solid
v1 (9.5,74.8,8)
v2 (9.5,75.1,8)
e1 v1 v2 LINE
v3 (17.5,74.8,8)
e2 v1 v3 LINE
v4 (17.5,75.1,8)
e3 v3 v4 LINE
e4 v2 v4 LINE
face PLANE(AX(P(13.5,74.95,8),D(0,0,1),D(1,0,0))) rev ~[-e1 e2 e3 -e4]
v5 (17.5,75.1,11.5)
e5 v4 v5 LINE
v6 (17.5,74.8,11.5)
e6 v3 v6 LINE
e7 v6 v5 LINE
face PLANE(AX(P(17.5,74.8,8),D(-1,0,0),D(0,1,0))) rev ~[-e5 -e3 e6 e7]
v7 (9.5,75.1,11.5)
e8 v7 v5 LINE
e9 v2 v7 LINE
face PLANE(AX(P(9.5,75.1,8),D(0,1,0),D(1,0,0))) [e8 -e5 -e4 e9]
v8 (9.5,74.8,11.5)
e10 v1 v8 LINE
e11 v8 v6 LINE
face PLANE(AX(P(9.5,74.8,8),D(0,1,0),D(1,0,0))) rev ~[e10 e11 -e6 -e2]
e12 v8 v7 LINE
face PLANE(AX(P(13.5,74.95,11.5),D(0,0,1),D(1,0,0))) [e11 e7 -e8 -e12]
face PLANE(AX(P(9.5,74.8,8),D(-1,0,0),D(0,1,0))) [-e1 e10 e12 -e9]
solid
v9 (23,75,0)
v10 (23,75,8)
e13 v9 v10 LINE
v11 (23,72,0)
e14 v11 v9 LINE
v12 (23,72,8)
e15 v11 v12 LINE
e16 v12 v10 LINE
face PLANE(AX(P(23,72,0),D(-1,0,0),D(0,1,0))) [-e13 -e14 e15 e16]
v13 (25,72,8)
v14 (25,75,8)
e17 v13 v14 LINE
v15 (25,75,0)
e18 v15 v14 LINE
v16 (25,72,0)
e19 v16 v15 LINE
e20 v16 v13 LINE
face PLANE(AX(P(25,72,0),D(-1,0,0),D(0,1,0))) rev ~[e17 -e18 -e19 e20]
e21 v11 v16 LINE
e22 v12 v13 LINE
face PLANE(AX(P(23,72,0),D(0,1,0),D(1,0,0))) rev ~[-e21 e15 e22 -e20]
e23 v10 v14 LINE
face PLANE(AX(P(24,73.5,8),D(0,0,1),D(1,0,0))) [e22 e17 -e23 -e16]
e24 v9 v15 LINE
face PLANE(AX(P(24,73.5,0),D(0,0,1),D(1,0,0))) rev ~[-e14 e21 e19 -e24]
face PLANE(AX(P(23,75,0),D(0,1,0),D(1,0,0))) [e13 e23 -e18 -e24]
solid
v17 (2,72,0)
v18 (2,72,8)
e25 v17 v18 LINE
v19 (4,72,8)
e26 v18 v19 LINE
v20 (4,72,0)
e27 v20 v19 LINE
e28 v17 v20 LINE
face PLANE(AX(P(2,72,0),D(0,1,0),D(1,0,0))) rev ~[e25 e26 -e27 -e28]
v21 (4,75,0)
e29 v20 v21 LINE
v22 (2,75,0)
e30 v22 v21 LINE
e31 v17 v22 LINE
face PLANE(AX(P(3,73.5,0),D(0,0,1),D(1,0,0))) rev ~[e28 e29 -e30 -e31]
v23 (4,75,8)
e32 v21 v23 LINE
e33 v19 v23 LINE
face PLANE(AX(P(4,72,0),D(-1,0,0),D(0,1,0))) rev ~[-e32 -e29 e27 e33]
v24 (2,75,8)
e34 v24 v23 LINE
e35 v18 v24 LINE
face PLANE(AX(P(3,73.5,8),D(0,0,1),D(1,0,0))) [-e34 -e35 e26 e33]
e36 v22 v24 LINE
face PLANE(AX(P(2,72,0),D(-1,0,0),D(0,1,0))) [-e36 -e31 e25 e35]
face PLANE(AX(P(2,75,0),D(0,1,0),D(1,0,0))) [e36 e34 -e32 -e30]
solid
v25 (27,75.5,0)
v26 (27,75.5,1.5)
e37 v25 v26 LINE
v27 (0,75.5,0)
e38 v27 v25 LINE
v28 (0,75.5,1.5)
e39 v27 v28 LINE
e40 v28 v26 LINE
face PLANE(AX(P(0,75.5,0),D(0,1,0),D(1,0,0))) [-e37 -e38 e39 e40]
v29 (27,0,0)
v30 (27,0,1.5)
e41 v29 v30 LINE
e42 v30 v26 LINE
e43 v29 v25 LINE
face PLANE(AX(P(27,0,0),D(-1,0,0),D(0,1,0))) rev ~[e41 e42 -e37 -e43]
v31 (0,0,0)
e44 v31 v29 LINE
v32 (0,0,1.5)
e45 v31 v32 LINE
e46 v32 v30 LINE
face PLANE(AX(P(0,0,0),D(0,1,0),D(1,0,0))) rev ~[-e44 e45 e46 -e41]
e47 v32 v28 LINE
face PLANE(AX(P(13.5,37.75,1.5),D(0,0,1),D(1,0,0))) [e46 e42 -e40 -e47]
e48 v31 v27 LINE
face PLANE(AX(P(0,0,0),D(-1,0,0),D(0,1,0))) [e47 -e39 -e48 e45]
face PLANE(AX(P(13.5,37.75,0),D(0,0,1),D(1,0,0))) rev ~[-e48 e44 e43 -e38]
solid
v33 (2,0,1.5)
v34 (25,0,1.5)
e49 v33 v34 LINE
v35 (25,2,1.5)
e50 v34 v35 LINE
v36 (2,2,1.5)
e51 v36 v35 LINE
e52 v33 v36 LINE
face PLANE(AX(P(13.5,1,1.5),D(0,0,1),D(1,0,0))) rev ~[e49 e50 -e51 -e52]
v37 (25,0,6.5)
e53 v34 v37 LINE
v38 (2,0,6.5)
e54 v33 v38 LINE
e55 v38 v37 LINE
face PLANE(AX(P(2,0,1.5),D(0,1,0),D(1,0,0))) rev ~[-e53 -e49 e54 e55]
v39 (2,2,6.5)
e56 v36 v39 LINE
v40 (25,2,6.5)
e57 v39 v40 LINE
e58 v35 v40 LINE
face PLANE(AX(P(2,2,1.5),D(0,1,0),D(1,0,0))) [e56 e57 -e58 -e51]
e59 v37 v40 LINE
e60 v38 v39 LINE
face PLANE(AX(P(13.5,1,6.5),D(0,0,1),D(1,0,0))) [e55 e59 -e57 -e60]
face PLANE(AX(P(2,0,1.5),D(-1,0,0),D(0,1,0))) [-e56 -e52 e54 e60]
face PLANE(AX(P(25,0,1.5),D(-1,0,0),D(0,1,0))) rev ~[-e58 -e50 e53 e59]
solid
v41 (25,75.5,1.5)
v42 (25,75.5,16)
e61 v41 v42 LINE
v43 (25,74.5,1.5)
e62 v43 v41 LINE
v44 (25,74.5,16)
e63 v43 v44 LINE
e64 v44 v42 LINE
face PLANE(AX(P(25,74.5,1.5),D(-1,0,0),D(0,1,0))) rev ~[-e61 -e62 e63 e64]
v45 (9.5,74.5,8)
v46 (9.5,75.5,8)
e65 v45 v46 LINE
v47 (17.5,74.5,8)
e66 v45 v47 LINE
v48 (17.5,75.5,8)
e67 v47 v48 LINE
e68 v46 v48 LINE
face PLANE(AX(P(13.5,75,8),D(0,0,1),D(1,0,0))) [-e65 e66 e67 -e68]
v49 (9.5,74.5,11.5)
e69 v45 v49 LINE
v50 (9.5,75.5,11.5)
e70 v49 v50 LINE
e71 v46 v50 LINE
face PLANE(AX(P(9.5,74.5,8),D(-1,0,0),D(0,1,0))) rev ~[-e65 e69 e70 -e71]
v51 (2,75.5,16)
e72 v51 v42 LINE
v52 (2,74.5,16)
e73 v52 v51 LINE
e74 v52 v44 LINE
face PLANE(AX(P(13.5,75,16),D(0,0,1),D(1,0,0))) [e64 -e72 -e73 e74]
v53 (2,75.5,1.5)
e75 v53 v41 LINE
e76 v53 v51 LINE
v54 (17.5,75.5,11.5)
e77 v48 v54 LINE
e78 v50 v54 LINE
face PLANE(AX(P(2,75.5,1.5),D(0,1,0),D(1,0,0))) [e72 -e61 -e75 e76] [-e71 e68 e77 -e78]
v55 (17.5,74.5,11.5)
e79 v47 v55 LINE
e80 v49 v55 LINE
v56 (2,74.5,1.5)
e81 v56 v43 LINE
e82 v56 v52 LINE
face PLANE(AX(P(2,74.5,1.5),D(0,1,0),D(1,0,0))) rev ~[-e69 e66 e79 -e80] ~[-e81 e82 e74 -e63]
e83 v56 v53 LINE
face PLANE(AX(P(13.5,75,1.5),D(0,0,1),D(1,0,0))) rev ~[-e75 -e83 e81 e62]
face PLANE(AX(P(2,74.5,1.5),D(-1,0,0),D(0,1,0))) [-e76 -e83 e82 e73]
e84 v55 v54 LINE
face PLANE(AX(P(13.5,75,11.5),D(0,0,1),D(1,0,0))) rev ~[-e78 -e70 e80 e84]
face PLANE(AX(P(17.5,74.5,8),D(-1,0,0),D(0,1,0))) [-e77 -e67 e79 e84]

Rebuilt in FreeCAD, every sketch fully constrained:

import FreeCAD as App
import Part
import Sketcher
Q = App.Units.Quantity

doc = App.newDocument("Part")
body = doc.addObject("PartDesign::Body", "Body")

# Sketch on XY plane
sketch1 = doc.addObject("Sketcher::SketchObject", "Sketch")
body.addObject(sketch1)
sketch1.AttachmentSupport = (doc.XY_Plane, [""])
sketch1.MapMode = "FlatFace"
sketch1.addGeometry([
    Part.LineSegment(App.Vector(0, 75.5, 0), App.Vector(0, 0, 0)),
    Part.LineSegment(App.Vector(0, 0, 0), App.Vector(27, 0, 0)),
    Part.LineSegment(App.Vector(27, 0, 0), App.Vector(27, 75.5, 0)),
    Part.LineSegment(App.Vector(27, 75.5, 0), App.Vector(0, 75.5, 0)),
], False)
sketch1.addConstraint([
    Sketcher.Constraint("Coincident", 0, 2, 1, 1),
    Sketcher.Constraint("Coincident", 1, 2, 2, 1),
    Sketcher.Constraint("Coincident", 2, 2, 3, 1),
    Sketcher.Constraint("Coincident", 3, 2, 0, 1),
    Sketcher.Constraint("Vertical", 0),
    Sketcher.Constraint("Horizontal", 1),
    Sketcher.Constraint("Vertical", 2),
    Sketcher.Constraint("Horizontal", 3),
    Sketcher.Constraint("Coincident", 0, 2, -1, 1),
    Sketcher.Constraint("DistanceX", 1, 1, 1, 2, Q("27 mm")),
    Sketcher.Constraint("DistanceY", 0, 2, 0, 1, Q("75.5 mm")),
])
pad1 = doc.addObject("PartDesign::Pad", "Pad")
body.addObject(pad1)
pad1.Profile = sketch1
pad1.Length = 1.5
body2 = doc.addObject("PartDesign::Body", "Body001")

# Sketch on XY plane
sketch2 = doc.addObject("Sketcher::SketchObject", "Sketch001")
body2.addObject(sketch2)
sketch2.AttachmentSupport = (doc.getObject("XY_Plane001"), [""])
sketch2.MapMode = "FlatFace"
sketch2.AttachmentOffset = App.Placement(App.Vector(0, 0, 1.5), App.Rotation())
sketch2.addGeometry([
    Part.LineSegment(App.Vector(2, 2, 0), App.Vector(2, 0, 0)),
    Part.LineSegment(App.Vector(2, 0, 0), App.Vector(25, 0, 0)),
    Part.LineSegment(App.Vector(25, 0, 0), App.Vector(25, 2, 0)),
    Part.LineSegment(App.Vector(25, 2, 0), App.Vector(2, 2, 0)),
], False)
sketch2.addConstraint([
    Sketcher.Constraint("Coincident", 0, 2, 1, 1),
    Sketcher.Constraint("Coincident", 1, 2, 2, 1),
    Sketcher.Constraint("Coincident", 2, 2, 3, 1),
    Sketcher.Constraint("Coincident", 3, 2, 0, 1),
    Sketcher.Constraint("Vertical", 0),
    Sketcher.Constraint("Horizontal", 1),
    Sketcher.Constraint("Vertical", 2),
    Sketcher.Constraint("Horizontal", 3),
    Sketcher.Constraint("PointOnObject", 0, 2, -1),
    Sketcher.Constraint("DistanceX", 1, 1, 1, 2, Q("23 mm")),
    Sketcher.Constraint("DistanceY", 0, 2, 0, 1, Q("2 mm")),
    Sketcher.Constraint("DistanceX", -1, 1, 0, 2, Q("2 mm")),
])
pad2 = doc.addObject("PartDesign::Pad", "Pad001")
body2.addObject(pad2)
pad2.Profile = sketch2
pad2.Length = 5
body3 = doc.addObject("PartDesign::Body", "Body002")

# Sketch on XY plane
sketch3 = doc.addObject("Sketcher::SketchObject", "Sketch002")
body3.addObject(sketch3)
sketch3.AttachmentSupport = (doc.getObject("XY_Plane002"), [""])
sketch3.MapMode = "FlatFace"
sketch3.AttachmentOffset = App.Placement(App.Vector(0, 0, 8), App.Rotation())
sketch3.addGeometry([
    Part.LineSegment(App.Vector(9.5, 75.5, 0), App.Vector(9.5, 74.5, 0)),
    Part.LineSegment(App.Vector(9.5, 74.5, 0), App.Vector(17.5, 74.5, 0)),
    Part.LineSegment(App.Vector(17.5, 74.5, 0), App.Vector(17.5, 75.5, 0)),
    Part.LineSegment(App.Vector(17.5, 75.5, 0), App.Vector(9.5, 75.5, 0)),
], False)
sketch3.addConstraint([
    Sketcher.Constraint("Coincident", 0, 2, 1, 1),
    Sketcher.Constraint("Coincident", 1, 2, 2, 1),
    Sketcher.Constraint("Coincident", 2, 2, 3, 1),
    Sketcher.Constraint("Coincident", 3, 2, 0, 1),
    Sketcher.Constraint("Vertical", 0),
    Sketcher.Constraint("Horizontal", 1),
    Sketcher.Constraint("Vertical", 2),
    Sketcher.Constraint("Horizontal", 3),
    Sketcher.Constraint("DistanceX", 1, 1, 1, 2, Q("8 mm")),
    Sketcher.Constraint("DistanceY", 0, 2, 0, 1, Q("1 mm")),
    Sketcher.Constraint("DistanceX", -1, 1, 0, 2, Q("9.5 mm")),
    Sketcher.Constraint("DistanceY", -1, 1, 0, 2, Q("74.5 mm")),
])
pad3 = doc.addObject("PartDesign::Pad", "Pad002")
body3.addObject(pad3)
pad3.Profile = sketch3
pad3.Length = 3.5
body4 = doc.addObject("PartDesign::Body", "Body003")

# Sketch on XY plane
sketch4 = doc.addObject("Sketcher::SketchObject", "Sketch003")
body4.addObject(sketch4)
sketch4.AttachmentSupport = (doc.getObject("XY_Plane003"), [""])
sketch4.MapMode = "FlatFace"
sketch4.AttachmentOffset = App.Placement(App.Vector(0, 0, 1.5), App.Rotation())
sketch4.addGeometry([
    Part.LineSegment(App.Vector(2, 75.5, 0), App.Vector(2, 74.5, 0)),
    Part.LineSegment(App.Vector(2, 74.5, 0), App.Vector(25, 74.5, 0)),
    Part.LineSegment(App.Vector(25, 74.5, 0), App.Vector(25, 75.5, 0)),
    Part.LineSegment(App.Vector(25, 75.5, 0), App.Vector(2, 75.5, 0)),
], False)
sketch4.addConstraint([
    Sketcher.Constraint("Coincident", 0, 2, 1, 1),
    Sketcher.Constraint("Coincident", 1, 2, 2, 1),
    Sketcher.Constraint("Coincident", 2, 2, 3, 1),
    Sketcher.Constraint("Coincident", 3, 2, 0, 1),
    Sketcher.Constraint("Vertical", 0),
    Sketcher.Constraint("Horizontal", 1),
    Sketcher.Constraint("Vertical", 2),
    Sketcher.Constraint("Horizontal", 3),
    Sketcher.Constraint("DistanceX", 1, 1, 1, 2, Q("23 mm")),
    Sketcher.Constraint("DistanceY", 0, 2, 0, 1, Q("1 mm")),
    Sketcher.Constraint("DistanceX", -1, 1, 0, 2, Q("2 mm")),
    Sketcher.Constraint("DistanceY", -1, 1, 0, 2, Q("74.5 mm")),
])
pad4 = doc.addObject("PartDesign::Pad", "Pad003")
body4.addObject(pad4)
pad4.Profile = sketch4
pad4.Length = 14.5
doc.recompute()

boolean = doc.addObject("PartDesign::Boolean", "Boolean")
body4.addObject(boolean)
boolean.Type = "Cut"
boolean.addObjects([body3])
body5 = doc.addObject("PartDesign::Body", "Body004")

# Sketch on XY plane
sketch5 = doc.addObject("Sketcher::SketchObject", "Sketch004")
body5.addObject(sketch5)
sketch5.AttachmentSupport = (doc.getObject("XY_Plane004"), [""])
sketch5.MapMode = "FlatFace"
sketch5.AttachmentOffset = App.Placement(App.Vector(0, 0, 8), App.Rotation())
sketch5.addGeometry([
    Part.LineSegment(App.Vector(9.5, 75.1, 0), App.Vector(9.5, 74.8, 0)),
    Part.LineSegment(App.Vector(9.5, 74.8, 0), App.Vector(17.5, 74.8, 0)),
    Part.LineSegment(App.Vector(17.5, 74.8, 0), App.Vector(17.5, 75.1, 0)),
    Part.LineSegment(App.Vector(17.5, 75.1, 0), App.Vector(9.5, 75.1, 0)),
], False)
sketch5.addConstraint([
    Sketcher.Constraint("Coincident", 0, 2, 1, 1),
    Sketcher.Constraint("Coincident", 1, 2, 2, 1),
    Sketcher.Constraint("Coincident", 2, 2, 3, 1),
    Sketcher.Constraint("Coincident", 3, 2, 0, 1),
    Sketcher.Constraint("Vertical", 0),
    Sketcher.Constraint("Horizontal", 1),
    Sketcher.Constraint("Vertical", 2),
    Sketcher.Constraint("Horizontal", 3),
    Sketcher.Constraint("DistanceX", 1, 1, 1, 2, Q("8 mm")),
    Sketcher.Constraint("DistanceY", 0, 2, 0, 1, Q("0.3 mm")),
    Sketcher.Constraint("DistanceX", -1, 1, 0, 2, Q("9.5 mm")),
    Sketcher.Constraint("DistanceY", -1, 1, 0, 2, Q("74.8 mm")),
])
pad5 = doc.addObject("PartDesign::Pad", "Pad004")
body5.addObject(pad5)
pad5.Profile = sketch5
pad5.Length = 3.5
body6 = doc.addObject("PartDesign::Body", "Body005")

# Sketch on XY plane
sketch6 = doc.addObject("Sketcher::SketchObject", "Sketch005")
body6.addObject(sketch6)
sketch6.AttachmentSupport = (doc.getObject("XY_Plane005"), [""])
sketch6.MapMode = "FlatFace"
sketch6.addGeometry([
    Part.LineSegment(App.Vector(2, 75, 0), App.Vector(2, 72, 0)),
    Part.LineSegment(App.Vector(2, 72, 0), App.Vector(4, 72, 0)),
    Part.LineSegment(App.Vector(4, 72, 0), App.Vector(4, 75, 0)),
    Part.LineSegment(App.Vector(4, 75, 0), App.Vector(2, 75, 0)),
], False)
sketch6.addConstraint([
    Sketcher.Constraint("Coincident", 0, 2, 1, 1),
    Sketcher.Constraint("Coincident", 1, 2, 2, 1),
    Sketcher.Constraint("Coincident", 2, 2, 3, 1),
    Sketcher.Constraint("Coincident", 3, 2, 0, 1),
    Sketcher.Constraint("Vertical", 0),
    Sketcher.Constraint("Horizontal", 1),
    Sketcher.Constraint("Vertical", 2),
    Sketcher.Constraint("Horizontal", 3),
    Sketcher.Constraint("DistanceX", 1, 1, 1, 2, Q("2 mm")),
    Sketcher.Constraint("DistanceY", 0, 2, 0, 1, Q("3 mm")),
    Sketcher.Constraint("DistanceX", -1, 1, 0, 2, Q("2 mm")),
    Sketcher.Constraint("DistanceY", -1, 1, 0, 2, Q("72 mm")),
])
pad6 = doc.addObject("PartDesign::Pad", "Pad005")
body6.addObject(pad6)
pad6.Profile = sketch6
pad6.Length = 8
body7 = doc.addObject("PartDesign::Body", "Body006")

# Sketch on XY plane
sketch7 = doc.addObject("Sketcher::SketchObject", "Sketch006")
body7.addObject(sketch7)
sketch7.AttachmentSupport = (doc.getObject("XY_Plane006"), [""])
sketch7.MapMode = "FlatFace"
sketch7.addGeometry([
    Part.LineSegment(App.Vector(23, 75, 0), App.Vector(23, 72, 0)),
    Part.LineSegment(App.Vector(23, 72, 0), App.Vector(25, 72, 0)),
    Part.LineSegment(App.Vector(25, 72, 0), App.Vector(25, 75, 0)),
    Part.LineSegment(App.Vector(25, 75, 0), App.Vector(23, 75, 0)),
], False)
sketch7.addConstraint([
    Sketcher.Constraint("Coincident", 0, 2, 1, 1),
    Sketcher.Constraint("Coincident", 1, 2, 2, 1),
    Sketcher.Constraint("Coincident", 2, 2, 3, 1),
    Sketcher.Constraint("Coincident", 3, 2, 0, 1),
    Sketcher.Constraint("Vertical", 0),
    Sketcher.Constraint("Horizontal", 1),
    Sketcher.Constraint("Vertical", 2),
    Sketcher.Constraint("Horizontal", 3),
    Sketcher.Constraint("DistanceX", 1, 1, 1, 2, Q("2 mm")),
    Sketcher.Constraint("DistanceY", 0, 2, 0, 1, Q("3 mm")),
    Sketcher.Constraint("DistanceX", -1, 1, 0, 2, Q("23 mm")),
    Sketcher.Constraint("DistanceY", -1, 1, 0, 2, Q("72 mm")),
])
pad7 = doc.addObject("PartDesign::Pad", "Pad006")
body7.addObject(pad7)
pad7.Profile = sketch7
pad7.Length = 8

doc.recompute()
